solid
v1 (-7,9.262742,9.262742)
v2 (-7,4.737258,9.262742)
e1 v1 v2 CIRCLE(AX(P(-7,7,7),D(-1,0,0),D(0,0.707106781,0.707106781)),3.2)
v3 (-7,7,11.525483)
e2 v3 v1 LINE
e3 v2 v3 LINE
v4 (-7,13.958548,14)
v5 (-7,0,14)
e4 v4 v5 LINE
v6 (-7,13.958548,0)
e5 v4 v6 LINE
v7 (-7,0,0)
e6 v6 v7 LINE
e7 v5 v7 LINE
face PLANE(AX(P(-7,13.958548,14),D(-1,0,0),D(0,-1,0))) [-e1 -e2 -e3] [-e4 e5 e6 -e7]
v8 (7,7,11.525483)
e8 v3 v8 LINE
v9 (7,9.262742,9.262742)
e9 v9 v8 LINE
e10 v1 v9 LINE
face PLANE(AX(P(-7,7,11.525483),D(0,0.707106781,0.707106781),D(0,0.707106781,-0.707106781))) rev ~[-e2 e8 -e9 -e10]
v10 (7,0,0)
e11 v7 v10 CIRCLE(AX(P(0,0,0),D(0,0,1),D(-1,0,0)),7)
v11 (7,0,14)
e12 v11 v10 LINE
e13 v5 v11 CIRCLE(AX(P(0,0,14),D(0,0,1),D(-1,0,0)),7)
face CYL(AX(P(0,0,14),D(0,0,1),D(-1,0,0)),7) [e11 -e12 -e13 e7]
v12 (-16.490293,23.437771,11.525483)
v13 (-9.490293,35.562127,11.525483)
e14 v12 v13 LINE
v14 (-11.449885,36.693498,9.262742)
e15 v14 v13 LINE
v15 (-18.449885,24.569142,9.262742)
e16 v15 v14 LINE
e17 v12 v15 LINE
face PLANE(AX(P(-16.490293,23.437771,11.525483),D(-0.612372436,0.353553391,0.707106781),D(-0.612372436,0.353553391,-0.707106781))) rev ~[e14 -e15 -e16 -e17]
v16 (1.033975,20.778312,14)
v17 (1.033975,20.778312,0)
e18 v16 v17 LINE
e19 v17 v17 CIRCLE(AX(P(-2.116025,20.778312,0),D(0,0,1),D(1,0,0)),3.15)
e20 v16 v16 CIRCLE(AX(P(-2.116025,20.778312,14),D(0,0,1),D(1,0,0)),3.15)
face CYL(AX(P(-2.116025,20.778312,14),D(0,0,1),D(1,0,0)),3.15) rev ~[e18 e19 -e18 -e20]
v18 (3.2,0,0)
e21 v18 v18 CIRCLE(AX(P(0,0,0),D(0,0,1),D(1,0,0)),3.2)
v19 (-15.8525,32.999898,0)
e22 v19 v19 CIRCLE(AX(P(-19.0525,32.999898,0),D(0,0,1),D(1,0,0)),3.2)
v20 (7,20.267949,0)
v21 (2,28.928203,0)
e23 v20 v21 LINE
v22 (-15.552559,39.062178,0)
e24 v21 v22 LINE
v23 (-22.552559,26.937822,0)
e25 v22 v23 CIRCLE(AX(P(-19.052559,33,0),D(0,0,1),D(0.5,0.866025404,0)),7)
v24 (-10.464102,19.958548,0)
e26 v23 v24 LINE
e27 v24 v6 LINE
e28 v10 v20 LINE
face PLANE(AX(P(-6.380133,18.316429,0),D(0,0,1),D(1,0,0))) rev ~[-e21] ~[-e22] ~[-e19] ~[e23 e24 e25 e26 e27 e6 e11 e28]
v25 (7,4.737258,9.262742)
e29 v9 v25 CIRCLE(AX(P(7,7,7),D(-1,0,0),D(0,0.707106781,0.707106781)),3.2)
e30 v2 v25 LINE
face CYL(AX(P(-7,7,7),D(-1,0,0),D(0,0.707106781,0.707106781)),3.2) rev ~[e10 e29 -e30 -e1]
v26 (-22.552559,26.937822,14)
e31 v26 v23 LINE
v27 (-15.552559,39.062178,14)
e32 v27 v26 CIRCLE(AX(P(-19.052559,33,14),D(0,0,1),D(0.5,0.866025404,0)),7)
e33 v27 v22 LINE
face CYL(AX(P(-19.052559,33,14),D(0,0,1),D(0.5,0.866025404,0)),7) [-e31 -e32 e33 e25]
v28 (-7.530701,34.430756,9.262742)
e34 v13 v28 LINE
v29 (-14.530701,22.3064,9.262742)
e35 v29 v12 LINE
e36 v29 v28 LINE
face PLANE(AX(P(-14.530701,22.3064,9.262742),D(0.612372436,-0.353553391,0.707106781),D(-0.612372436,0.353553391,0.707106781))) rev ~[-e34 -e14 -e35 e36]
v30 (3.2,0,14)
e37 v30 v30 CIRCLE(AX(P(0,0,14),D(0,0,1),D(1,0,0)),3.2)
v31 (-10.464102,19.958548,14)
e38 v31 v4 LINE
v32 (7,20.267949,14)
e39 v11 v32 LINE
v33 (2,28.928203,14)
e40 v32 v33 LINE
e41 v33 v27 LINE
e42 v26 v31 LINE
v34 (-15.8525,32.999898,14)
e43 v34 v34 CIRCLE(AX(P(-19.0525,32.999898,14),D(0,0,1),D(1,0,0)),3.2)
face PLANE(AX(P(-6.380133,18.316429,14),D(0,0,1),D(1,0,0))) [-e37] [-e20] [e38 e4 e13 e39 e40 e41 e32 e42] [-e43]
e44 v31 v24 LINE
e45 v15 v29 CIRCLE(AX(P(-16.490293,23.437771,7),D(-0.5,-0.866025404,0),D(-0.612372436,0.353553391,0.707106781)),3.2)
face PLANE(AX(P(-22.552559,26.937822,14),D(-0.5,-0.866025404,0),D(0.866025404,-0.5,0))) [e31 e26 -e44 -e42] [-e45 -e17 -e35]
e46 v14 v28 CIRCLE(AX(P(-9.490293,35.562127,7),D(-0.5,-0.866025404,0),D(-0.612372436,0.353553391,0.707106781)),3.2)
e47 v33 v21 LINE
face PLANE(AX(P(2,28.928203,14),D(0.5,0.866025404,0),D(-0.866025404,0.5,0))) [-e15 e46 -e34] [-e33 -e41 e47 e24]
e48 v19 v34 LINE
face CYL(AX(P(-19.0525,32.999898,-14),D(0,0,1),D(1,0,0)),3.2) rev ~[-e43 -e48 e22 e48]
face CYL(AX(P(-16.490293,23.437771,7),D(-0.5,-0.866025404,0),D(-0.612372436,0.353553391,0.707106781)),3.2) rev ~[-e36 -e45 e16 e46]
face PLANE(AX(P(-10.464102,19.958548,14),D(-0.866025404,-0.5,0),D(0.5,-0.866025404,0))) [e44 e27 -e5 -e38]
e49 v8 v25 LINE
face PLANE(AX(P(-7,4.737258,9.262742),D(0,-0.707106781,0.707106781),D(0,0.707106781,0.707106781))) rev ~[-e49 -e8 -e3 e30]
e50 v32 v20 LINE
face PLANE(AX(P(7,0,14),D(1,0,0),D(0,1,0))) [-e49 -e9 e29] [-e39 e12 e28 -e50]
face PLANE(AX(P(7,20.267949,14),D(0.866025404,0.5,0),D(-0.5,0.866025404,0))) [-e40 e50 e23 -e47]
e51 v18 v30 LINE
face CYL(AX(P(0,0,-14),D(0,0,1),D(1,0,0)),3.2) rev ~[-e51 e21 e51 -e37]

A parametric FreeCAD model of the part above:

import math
import FreeCAD as App
import Part
import Sketcher
from FreeCAD import Vector
Q = App.Units.Quantity

doc = App.newDocument("Part")
body = doc.addObject("PartDesign::Body", "Body")

sketch1 = body.newObject("Sketcher::SketchObject", "Sketch")
sketch1.AttachmentSupport = (doc.getObject("XY_Plane"), [""])
sketch1.MapMode = "FlatFace"
sketch1.AttachmentOffset = App.Placement(Vector(0, 0, 14), App.Rotation())
sketch1.addGeometry(Part.LineSegment(Vector(7, 0, 0), Vector(7, 20, 0)), False)
sketch1.addGeometry(Part.LineSegment(Vector(7, 20, 0), Vector(2, 29, 0)), False)
sketch1.addGeometry(Part.LineSegment(Vector(2, 29, 0), Vector(-16, 39, 0)), False)
sketch1.addGeometry(Part.ArcOfCircle(Part.Circle(Vector(-19, 33, 0), Vector(0, 0, 1), 7), math.radians(60), math.radians(240)), False)
sketch1.addGeometry(Part.LineSegment(Vector(-23, 27, 0), Vector(-10, 20, 0)), False)
sketch1.addGeometry(Part.LineSegment(Vector(-10, 20, 0), Vector(-7, 14, 0)), False)
sketch1.addGeometry(Part.LineSegment(Vector(-7, 14, 0), Vector(-7, 0, 0)), False)
sketch1.addGeometry(Part.ArcOfCircle(Part.Circle(Vector(0, 0, 0), Vector(0, 0, 1), 7), math.radians(180), math.radians(360)), False)
sketch1.addConstraint(Sketcher.Constraint("Coincident", 0, 2, 1, 1))
sketch1.addConstraint(Sketcher.Constraint("Coincident", 1, 2, 2, 1))
sketch1.addConstraint(Sketcher.Constraint("Tangent", 2, 2, 3, 1))
sketch1.addConstraint(Sketcher.Constraint("Tangent", 3, 2, 4, 1))
sketch1.addConstraint(Sketcher.Constraint("Coincident", 4, 2, 5, 1))
sketch1.addConstraint(Sketcher.Constraint("Coincident", 5, 2, 6, 1))
sketch1.addConstraint(Sketcher.Constraint("Tangent", 6, 2, 7, 1))
sketch1.addConstraint(Sketcher.Constraint("Tangent", 7, 2, 0, 1))
sketch1.addConstraint(Sketcher.Constraint("Vertical", 0))
sketch1.addConstraint(Sketcher.Constraint("Vertical", 6))
sketch1.addConstraint(Sketcher.Constraint("Coincident", 7, 3, -1, 1))
sketch1.addConstraint(Sketcher.Constraint("Equal", 3, 7))
sketch1.addConstraint(Sketcher.Constraint("Parallel", 2, 4))
sketch1.addConstraint(Sketcher.Constraint("Parallel", 1, 5))
sketch1.addConstraint(Sketcher.Constraint("Radius", 3, 7.0))
sketch1.addConstraint(Sketcher.Constraint("Angle", 1, Q("120 deg")))
sketch1.addConstraint(Sketcher.Constraint("Angle", 2, Q("150 deg")))
sketch1.addConstraint(Sketcher.Constraint("Distance", 1, 10.0))
sketch1.addConstraint(Sketcher.Constraint("DistanceY", -1, 1, 3, 3, 33.0))
sketch1.addConstraint(Sketcher.Constraint("DistanceY", 5, 2, 4, 2, 6.0))
sketch1.addConstraint(Sketcher.Constraint("DistanceY", 0, 1, 0, 2, 20.267949))
pad1 = body.newObject("PartDesign::Pad", "Pad")
pad1.Profile = sketch1
pad1.Length = 14
pad1.Reversed = True

sketch2 = body.newObject("Sketcher::SketchObject", "Sketch001")
sketch2.AttachmentSupport = (doc.getObject("XY_Plane"), [""])
sketch2.MapMode = "FlatFace"
sketch2.addGeometry(Part.Circle(Vector(0, 0, 0), Vector(0, 0, 1), 3.2), False)
sketch2.addConstraint(Sketcher.Constraint("Coincident", 0, 3, -1, 1))
sketch2.addConstraint(Sketcher.Constraint("Diameter", 0, 6.4))
doc.recompute()
hole = body.newObject("PartDesign::Hole", "Hole")
hole.Profile = sketch2
hole.ThreadType = "None"
hole.Diameter = 6.4
hole.DepthType = "Dimension"
hole.Depth = 14
hole.DrillPoint = "Flat"
hole.Reversed = True

sketch3 = body.newObject("Sketcher::SketchObject", "Sketch002")
sketch3.AttachmentSupport = (doc.getObject("XY_Plane"), [""])
sketch3.MapMode = "FlatFace"
sketch3.addGeometry(Part.Circle(Vector(-19.1, 33, 0), Vector(0, 0, 1), 3.2), False)
sketch3.addConstraint(Sketcher.Constraint("Diameter", 0, 6.4))
sketch3.addConstraint(Sketcher.Constraint("DistanceX", 0, 3, -1, 1, 19.0525))
sketch3.addConstraint(Sketcher.Constraint("DistanceY", -1, 1, 0, 3, 32.999898))
doc.recompute()
hole2 = body.newObject("PartDesign::Hole", "Hole001")
hole2.Profile = sketch3
hole2.ThreadType = "None"
hole2.Diameter = 6.4
hole2.DepthType = "Dimension"
hole2.Depth = 14
hole2.DrillPoint = "Flat"
hole2.Reversed = True

sketch4 = body.newObject("Sketcher::SketchObject", "Sketch003")
sketch4.Placement = App.Placement(Vector(6.026279, 10.437822, 0), App.Rotation(Vector(0.866025404, -0.5, 0), Vector(0, 0, 1), Vector(-0.5, -0.866025404, 0), "ZXY"))
sketch4.addGeometry(Part.LineSegment(Vector(-26, 11.5, 0), Vector(-28.3, 9.3, 0)), False)
sketch4.addGeometry(Part.ArcOfCircle(Part.Circle(Vector(-26, 7, 0), Vector(0, 0, 1), 3.2), math.radians(135), math.radians(405)), False)
sketch4.addGeometry(Part.LineSegment(Vector(-23.7, 9.3, 0), Vector(-26, 11.5, 0)), False)
sketch4.addConstraint(Sketcher.Constraint("Tangent", 0, 2, 1, 1))
sketch4.addConstraint(Sketcher.Constraint("Tangent", 1, 2, 2, 1))
sketch4.addConstraint(Sketcher.Constraint("Coincident", 2, 2, 0, 1))
sketch4.addConstraint(Sketcher.Constraint("Perpendicular", 0, 2))
sketch4.addConstraint(Sketcher.Constraint("Horizontal", 0, 2, 1, 2))
sketch4.addConstraint(Sketcher.Constraint("Radius", 1, 3.2))
sketch4.addConstraint(Sketcher.Constraint("DistanceY", -1, 1, 1, 3, 7.0))
sketch4.addConstraint(Sketcher.Constraint("DistanceX", 1, 3, -1, 1, 25.999898))
pocket1 = body.newObject("PartDesign::Pocket", "Pocket")
pocket1.Profile = sketch4
pocket1.Type = "ThroughAll"

sketch5 = body.newObject("Sketcher::SketchObject", "Sketch004")
sketch5.AttachmentSupport = (doc.getObject("YZ_Plane"), [""])
sketch5.MapMode = "FlatFace"
sketch5.AttachmentOffset = App.Placement(Vector(0, 0, -7), App.Rotation())
sketch5.addGeometry(Part.LineSegment(Vector(4.7, 9.3, 0), Vector(7, 11.5, 0)), False)
sketch5.addGeometry(Part.LineSegment(Vector(7, 11.5, 0), Vector(9.3, 9.3, 0)), False)
sketch5.addGeometry(Part.ArcOfCircle(Part.Circle(Vector(7, 7, 0), Vector(0, 0, 1), 3.2), math.radians(135), math.radians(405)), False)
sketch5.addConstraint(Sketcher.Constraint("Coincident", 0, 2, 1, 1))
sketch5.addConstraint(Sketcher.Constraint("Tangent", 1, 2, 2, 2))
sketch5.addConstraint(Sketcher.Constraint("Tangent", 2, 1, 0, 1))
sketch5.addConstraint(Sketcher.Constraint("Perpendicular", 0, 1))
sketch5.addConstraint(Sketcher.Constraint("Horizontal", 1, 2, 2, 1))
sketch5.addConstraint(Sketcher.Constraint("Radius", 2, 3.2))
sketch5.addConstraint(Sketcher.Constraint("DistanceX", -1, 1, 2, 3, 7.0))
sketch5.addConstraint(Sketcher.Constraint("DistanceY", -1, 1, 2, 3, 7.0))
pocket2 = body.newObject("PartDesign::Pocket", "Pocket001")
pocket2.Profile = sketch5
pocket2.Type = "ThroughAll"
pocket2.Reversed = True

sketch6 = body.newObject("Sketcher::SketchObject", "Sketch005")
sketch6.AttachmentSupport = (doc.getObject("XY_Plane"), [""])
sketch6.MapMode = "FlatFace"
sketch6.AttachmentOffset = App.Placement(Vector(0, 0, 14), App.Rotation())
sketch6.addGeometry(Part.Circle(Vector(-2.1, 20.8, 0), Vector(0, 0, 1), 3.1), False)
sketch6.addConstraint(Sketcher.Constraint("Diameter", 0, 6.3))
sketch6.addConstraint(Sketcher.Constraint("DistanceX", 0, 3, -1, 1, 2.116025))
sketch6.addConstraint(Sketcher.Constraint("DistanceY", -1, 1, 0, 3, 20.778312))
pocket3 = body.newObject("PartDesign::Pocket", "Pocket002")
pocket3.Profile = sketch6
pocket3.Type = "ThroughAll"

doc.recompute()
